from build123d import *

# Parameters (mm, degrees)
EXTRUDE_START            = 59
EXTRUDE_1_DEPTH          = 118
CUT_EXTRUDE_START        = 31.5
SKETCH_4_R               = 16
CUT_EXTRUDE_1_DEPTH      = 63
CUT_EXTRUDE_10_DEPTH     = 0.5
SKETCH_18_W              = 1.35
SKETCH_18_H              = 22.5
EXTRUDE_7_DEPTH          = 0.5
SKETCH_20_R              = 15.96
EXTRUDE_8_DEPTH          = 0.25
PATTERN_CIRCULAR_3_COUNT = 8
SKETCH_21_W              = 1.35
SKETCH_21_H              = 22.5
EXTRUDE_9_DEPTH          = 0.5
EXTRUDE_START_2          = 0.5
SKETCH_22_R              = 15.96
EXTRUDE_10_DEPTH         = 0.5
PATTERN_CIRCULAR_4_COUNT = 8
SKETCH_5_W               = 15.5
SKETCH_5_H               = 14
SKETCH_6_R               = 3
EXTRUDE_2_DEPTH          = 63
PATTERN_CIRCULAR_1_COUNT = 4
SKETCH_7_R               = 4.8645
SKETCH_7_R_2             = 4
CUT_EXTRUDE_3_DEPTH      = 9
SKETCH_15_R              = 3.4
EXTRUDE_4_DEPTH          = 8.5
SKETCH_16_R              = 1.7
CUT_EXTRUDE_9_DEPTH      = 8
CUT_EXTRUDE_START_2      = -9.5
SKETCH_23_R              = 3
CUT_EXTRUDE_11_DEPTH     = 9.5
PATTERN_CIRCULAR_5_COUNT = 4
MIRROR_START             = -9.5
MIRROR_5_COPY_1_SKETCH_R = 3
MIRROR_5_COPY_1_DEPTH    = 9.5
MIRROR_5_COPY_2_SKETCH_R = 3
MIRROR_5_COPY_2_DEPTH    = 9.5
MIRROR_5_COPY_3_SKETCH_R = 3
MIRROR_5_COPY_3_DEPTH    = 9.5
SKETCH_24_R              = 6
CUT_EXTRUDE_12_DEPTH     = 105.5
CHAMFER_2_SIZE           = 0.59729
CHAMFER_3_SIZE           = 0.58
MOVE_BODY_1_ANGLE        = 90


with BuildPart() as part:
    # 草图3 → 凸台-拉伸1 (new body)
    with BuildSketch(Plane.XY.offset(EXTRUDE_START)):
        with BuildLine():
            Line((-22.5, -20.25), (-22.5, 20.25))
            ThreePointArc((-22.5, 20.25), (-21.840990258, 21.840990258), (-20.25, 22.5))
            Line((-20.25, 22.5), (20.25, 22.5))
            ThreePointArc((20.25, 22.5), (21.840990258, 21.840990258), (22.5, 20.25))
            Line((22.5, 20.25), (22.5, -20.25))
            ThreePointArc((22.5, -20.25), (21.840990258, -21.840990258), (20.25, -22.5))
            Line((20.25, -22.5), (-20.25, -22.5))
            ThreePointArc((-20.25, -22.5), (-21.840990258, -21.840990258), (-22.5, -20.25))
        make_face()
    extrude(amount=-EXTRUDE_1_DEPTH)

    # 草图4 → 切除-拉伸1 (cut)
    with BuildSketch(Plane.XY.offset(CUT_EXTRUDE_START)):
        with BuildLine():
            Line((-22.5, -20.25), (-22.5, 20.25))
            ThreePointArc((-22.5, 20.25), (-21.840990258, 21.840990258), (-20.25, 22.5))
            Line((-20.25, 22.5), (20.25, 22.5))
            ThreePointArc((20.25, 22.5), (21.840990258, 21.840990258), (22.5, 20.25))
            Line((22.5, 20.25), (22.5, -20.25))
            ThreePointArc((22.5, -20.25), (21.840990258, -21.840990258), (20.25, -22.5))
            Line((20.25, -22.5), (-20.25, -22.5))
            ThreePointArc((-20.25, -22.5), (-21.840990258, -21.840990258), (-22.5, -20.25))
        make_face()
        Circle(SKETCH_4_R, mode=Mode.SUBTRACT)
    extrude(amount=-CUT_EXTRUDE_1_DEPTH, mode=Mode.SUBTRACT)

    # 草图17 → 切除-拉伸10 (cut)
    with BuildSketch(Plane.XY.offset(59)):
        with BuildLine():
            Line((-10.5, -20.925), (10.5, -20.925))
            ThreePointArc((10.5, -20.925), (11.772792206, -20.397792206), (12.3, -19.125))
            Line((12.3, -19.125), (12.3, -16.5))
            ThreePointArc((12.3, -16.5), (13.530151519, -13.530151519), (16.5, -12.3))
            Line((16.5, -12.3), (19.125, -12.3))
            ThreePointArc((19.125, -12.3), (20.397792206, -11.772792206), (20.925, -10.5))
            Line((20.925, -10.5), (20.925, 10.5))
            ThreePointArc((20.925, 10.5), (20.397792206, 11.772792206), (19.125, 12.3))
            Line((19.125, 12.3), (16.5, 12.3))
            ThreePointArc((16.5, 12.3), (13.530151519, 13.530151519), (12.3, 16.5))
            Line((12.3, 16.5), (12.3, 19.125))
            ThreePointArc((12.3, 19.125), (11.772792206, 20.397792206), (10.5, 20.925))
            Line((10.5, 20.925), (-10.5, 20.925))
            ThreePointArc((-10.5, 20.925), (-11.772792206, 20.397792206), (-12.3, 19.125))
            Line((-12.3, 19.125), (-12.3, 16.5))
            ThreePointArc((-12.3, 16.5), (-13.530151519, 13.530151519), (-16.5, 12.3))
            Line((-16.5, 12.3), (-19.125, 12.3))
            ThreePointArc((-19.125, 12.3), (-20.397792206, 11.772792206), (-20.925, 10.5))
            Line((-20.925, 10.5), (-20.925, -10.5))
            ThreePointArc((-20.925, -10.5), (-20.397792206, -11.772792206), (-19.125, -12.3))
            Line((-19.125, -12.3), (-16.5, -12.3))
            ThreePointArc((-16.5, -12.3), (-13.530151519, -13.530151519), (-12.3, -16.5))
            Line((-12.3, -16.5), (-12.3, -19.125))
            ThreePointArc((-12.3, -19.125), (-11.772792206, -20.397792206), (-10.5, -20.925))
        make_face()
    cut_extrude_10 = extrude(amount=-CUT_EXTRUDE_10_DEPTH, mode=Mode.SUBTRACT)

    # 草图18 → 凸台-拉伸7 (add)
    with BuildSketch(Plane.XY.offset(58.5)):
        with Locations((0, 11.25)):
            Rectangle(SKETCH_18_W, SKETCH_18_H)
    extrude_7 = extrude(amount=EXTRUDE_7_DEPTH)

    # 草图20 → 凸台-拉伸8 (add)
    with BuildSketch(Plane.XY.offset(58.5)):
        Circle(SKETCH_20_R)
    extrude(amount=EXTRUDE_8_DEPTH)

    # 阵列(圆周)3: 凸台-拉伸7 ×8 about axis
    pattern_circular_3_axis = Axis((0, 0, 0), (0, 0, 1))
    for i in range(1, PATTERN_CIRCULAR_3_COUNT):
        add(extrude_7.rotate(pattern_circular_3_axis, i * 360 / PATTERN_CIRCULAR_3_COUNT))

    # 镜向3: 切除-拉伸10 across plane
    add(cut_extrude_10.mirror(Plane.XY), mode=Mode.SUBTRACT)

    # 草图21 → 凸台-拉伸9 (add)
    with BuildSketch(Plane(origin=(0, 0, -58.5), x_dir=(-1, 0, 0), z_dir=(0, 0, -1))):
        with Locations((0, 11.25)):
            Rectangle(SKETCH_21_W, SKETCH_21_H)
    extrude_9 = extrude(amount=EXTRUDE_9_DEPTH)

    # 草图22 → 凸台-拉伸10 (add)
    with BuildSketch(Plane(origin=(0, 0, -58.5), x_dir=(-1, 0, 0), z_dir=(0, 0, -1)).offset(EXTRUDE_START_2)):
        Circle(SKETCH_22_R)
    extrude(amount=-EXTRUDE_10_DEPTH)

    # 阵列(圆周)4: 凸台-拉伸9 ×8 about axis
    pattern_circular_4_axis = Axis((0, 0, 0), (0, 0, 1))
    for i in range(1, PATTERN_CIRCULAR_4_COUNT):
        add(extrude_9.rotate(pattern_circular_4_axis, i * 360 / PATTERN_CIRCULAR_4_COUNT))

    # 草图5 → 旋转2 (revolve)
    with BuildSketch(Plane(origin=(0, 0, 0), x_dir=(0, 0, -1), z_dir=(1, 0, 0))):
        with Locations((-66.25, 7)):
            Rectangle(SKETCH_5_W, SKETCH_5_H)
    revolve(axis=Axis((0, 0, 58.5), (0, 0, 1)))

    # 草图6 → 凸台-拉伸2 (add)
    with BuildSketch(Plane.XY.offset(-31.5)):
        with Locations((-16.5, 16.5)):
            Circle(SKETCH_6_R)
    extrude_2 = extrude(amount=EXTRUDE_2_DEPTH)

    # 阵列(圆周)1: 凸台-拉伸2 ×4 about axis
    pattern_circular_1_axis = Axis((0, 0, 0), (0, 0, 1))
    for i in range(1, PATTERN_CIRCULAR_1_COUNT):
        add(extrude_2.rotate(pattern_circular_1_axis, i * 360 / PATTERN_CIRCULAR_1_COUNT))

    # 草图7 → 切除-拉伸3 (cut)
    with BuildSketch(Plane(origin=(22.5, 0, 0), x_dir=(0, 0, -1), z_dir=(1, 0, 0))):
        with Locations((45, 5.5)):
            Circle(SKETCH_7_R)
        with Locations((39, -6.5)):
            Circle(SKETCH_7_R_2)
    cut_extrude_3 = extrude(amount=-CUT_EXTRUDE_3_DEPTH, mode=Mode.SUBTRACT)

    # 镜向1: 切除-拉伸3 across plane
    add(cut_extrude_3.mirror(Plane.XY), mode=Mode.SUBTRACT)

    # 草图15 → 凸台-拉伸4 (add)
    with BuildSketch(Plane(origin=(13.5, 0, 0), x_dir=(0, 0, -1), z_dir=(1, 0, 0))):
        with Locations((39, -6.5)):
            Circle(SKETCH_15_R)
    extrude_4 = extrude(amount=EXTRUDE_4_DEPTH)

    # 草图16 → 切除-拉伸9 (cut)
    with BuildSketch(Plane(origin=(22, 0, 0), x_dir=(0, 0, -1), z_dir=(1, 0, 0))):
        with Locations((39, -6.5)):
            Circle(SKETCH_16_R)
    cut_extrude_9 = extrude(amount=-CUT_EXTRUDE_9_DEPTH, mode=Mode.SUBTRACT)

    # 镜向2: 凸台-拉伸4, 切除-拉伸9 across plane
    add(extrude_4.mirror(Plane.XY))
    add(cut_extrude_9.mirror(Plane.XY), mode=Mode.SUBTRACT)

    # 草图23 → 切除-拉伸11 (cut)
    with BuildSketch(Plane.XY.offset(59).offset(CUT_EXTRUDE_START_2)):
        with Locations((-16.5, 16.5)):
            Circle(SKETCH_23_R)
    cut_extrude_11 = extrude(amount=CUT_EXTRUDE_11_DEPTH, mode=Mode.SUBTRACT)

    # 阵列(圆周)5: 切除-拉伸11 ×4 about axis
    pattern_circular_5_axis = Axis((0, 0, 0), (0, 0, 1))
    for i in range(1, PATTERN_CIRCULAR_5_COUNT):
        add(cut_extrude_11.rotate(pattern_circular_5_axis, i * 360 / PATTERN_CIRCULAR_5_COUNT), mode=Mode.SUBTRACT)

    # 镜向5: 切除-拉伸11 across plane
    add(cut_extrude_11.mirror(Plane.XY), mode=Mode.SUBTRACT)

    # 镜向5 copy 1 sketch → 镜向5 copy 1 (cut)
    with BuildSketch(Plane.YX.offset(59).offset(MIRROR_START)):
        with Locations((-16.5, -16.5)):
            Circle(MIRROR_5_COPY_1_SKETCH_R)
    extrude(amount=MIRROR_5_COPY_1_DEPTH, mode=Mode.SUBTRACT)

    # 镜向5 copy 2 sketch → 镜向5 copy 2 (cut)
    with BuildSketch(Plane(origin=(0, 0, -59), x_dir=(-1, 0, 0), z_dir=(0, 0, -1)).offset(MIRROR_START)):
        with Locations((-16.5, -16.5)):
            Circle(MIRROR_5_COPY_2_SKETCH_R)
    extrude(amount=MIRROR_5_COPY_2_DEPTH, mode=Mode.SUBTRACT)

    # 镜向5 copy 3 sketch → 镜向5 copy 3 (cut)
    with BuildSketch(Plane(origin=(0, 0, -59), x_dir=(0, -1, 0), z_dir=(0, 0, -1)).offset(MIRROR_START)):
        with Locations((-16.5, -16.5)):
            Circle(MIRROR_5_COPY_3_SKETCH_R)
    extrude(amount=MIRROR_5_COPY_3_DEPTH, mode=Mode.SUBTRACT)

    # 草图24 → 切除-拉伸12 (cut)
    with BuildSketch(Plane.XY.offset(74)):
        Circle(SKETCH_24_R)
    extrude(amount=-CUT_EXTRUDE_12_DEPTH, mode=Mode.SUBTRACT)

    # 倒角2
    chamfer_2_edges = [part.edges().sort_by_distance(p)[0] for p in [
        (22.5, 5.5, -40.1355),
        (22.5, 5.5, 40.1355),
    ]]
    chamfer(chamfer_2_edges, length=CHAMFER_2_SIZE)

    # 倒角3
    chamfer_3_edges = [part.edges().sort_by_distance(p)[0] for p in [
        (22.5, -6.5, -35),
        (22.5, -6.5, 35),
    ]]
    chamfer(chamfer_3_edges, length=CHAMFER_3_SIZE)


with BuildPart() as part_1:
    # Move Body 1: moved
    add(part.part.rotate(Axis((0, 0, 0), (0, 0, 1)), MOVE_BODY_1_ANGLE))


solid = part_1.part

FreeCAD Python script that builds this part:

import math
import FreeCAD as App
import Part
import Sketcher
Q = App.Units.Quantity


def edges_at(feature, points):
    """Names of the edges that pass closest to the given points."""
    edges = feature.Shape.Edges
    near = lambda p: min(range(len(edges)), key=lambda i: edges[i].distToShape(Part.Vertex(*p))[0])
    return sorted({f"Edge{near(p) + 1}" for p in points})


def add_polygon(sketch, points):
    """Adds a closed chain of lines whose ends are joined by coincident constraints."""
    first, n = sketch.GeometryCount, len(points)
    for a, b in zip(points, points[1:] + points[:1]):
        sketch.addGeometry(Part.LineSegment(App.Vector(*a, 0), App.Vector(*b, 0)), False)
    for i in range(n):
        sketch.addConstraint(Sketcher.Constraint("Coincident", first + i, 2, first + (i + 1) % n, 1))

doc = App.newDocument("Part")
body = doc.addObject("PartDesign::Body", "Body")

# Sketch on XY plane
sketch1 = body.newObject("Sketcher::SketchObject", "Sketch")
sketch1.AttachmentSupport = (doc.getObject("XY_Plane"), [""])
sketch1.MapMode = "FlatFace"
sketch1.AttachmentOffset = App.Placement(App.Vector(0, 0, 59), App.Rotation())
sketch1.addGeometry([
    Part.LineSegment(App.Vector(-22.5, 20.2, 0), App.Vector(-22.5, -20.2, 0)),  # 0
    Part.ArcOfCircle(Part.Circle(App.Vector(-20.3, -20.3, 0), App.Vector(0, 0, 1), 2.2), math.radians(180), math.radians(270)),  # 1
    Part.LineSegment(App.Vector(-20.2, -22.5, 0), App.Vector(20.2, -22.5, 0)),  # 2
    Part.ArcOfCircle(Part.Circle(App.Vector(20.3, -20.3, 0), App.Vector(0, 0, 1), 2.2), math.radians(-90), math.radians(0)),  # 3
    Part.LineSegment(App.Vector(22.5, -20.2, 0), App.Vector(22.5, 20.2, 0)),  # 4
    Part.ArcOfCircle(Part.Circle(App.Vector(20.3, 20.3, 0), App.Vector(0, 0, 1), 2.2), math.radians(0), math.radians(90)),  # 5
    Part.LineSegment(App.Vector(20.2, 22.5, 0), App.Vector(-20.2, 22.5, 0)),  # 6
    Part.ArcOfCircle(Part.Circle(App.Vector(-20.3, 20.3, 0), App.Vector(0, 0, 1), 2.2), math.radians(90), math.radians(180)),  # 7
], False)
sketch1.addConstraint([
    Sketcher.Constraint("Tangent", 0, 2, 1, 1),
    Sketcher.Constraint("Tangent", 1, 2, 2, 1),
    Sketcher.Constraint("Tangent", 2, 2, 3, 1),
    Sketcher.Constraint("Tangent", 3, 2, 4, 1),
    Sketcher.Constraint("Tangent", 4, 2, 5, 1),
    Sketcher.Constraint("Tangent", 5, 2, 6, 1),
    Sketcher.Constraint("Tangent", 6, 2, 7, 1),
    Sketcher.Constraint("Tangent", 7, 2, 0, 1),
    Sketcher.Constraint("Vertical", 0),
    Sketcher.Constraint("Horizontal", 2),
    Sketcher.Constraint("Vertical", 4),
    Sketcher.Constraint("Horizontal", 6),
    Sketcher.Constraint("Equal", 1, 3),
    Sketcher.Constraint("Equal", 3, 5),
    Sketcher.Constraint("Equal", 5, 7),
    Sketcher.Constraint("Symmetric", 1, 3, 5, 3, -1, 1),
    Sketcher.Constraint("Equal", 6, 0),
    Sketcher.Constraint("Radius", 1, Q("2.25 mm")),
    Sketcher.Constraint("DistanceX", 2, 1, 2, 2, Q("40.5 mm")),
])
pad1 = body.newObject("PartDesign::Pad", "Pad")
pad1.Profile = sketch1
pad1.Length = 118
pad1.Reversed = True

# Sketch on XY plane
sketch2 = body.newObject("Sketcher::SketchObject", "Sketch001")
sketch2.AttachmentSupport = (doc.getObject("XY_Plane"), [""])
sketch2.MapMode = "FlatFace"
sketch2.AttachmentOffset = App.Placement(App.Vector(0, 0, 31.5), App.Rotation())
sketch2.addGeometry([
    Part.LineSegment(App.Vector(-22.5, 20.2, 0), App.Vector(-22.5, -20.2, 0)),  # 0
    Part.ArcOfCircle(Part.Circle(App.Vector(-20.3, -20.3, 0), App.Vector(0, 0, 1), 2.2), math.radians(180), math.radians(270)),  # 1
    Part.LineSegment(App.Vector(-20.2, -22.5, 0), App.Vector(20.2, -22.5, 0)),  # 2
    Part.ArcOfCircle(Part.Circle(App.Vector(20.3, -20.3, 0), App.Vector(0, 0, 1), 2.2), math.radians(-90), math.radians(0)),  # 3
    Part.LineSegment(App.Vector(22.5, -20.2, 0), App.Vector(22.5, 20.2, 0)),  # 4
    Part.ArcOfCircle(Part.Circle(App.Vector(20.3, 20.3, 0), App.Vector(0, 0, 1), 2.2), math.radians(0), math.radians(90)),  # 5
    Part.LineSegment(App.Vector(20.2, 22.5, 0), App.Vector(-20.2, 22.5, 0)),  # 6
    Part.ArcOfCircle(Part.Circle(App.Vector(-20.3, 20.3, 0), App.Vector(0, 0, 1), 2.2), math.radians(90), math.radians(180)),  # 7
    Part.Circle(App.Vector(0, 0, 0), App.Vector(0, 0, 1), 16),  # 8
], False)
sketch2.addConstraint([
    Sketcher.Constraint("Tangent", 0, 2, 1, 1),
    Sketcher.Constraint("Tangent", 1, 2, 2, 1),
    Sketcher.Constraint("Tangent", 2, 2, 3, 1),
    Sketcher.Constraint("Tangent", 3, 2, 4, 1),
    Sketcher.Constraint("Tangent", 4, 2, 5, 1),
    Sketcher.Constraint("Tangent", 5, 2, 6, 1),
    Sketcher.Constraint("Tangent", 6, 2, 7, 1),
    Sketcher.Constraint("Tangent", 7, 2, 0, 1),
    Sketcher.Constraint("Vertical", 0),
    Sketcher.Constraint("Horizontal", 2),
    Sketcher.Constraint("Vertical", 4),
    Sketcher.Constraint("Horizontal", 6),
    Sketcher.Constraint("Coincident", 8, 3, -1, 1),
    Sketcher.Constraint("Equal", 1, 3),
    Sketcher.Constraint("Equal", 3, 5),
    Sketcher.Constraint("Equal", 5, 7),
    Sketcher.Constraint("Symmetric", 1, 3, 5, 3, -1, 1),
    Sketcher.Constraint("Equal", 6, 0),
    Sketcher.Constraint("Diameter", 8, Q("32 mm")),
    Sketcher.Constraint("Radius", 1, Q("2.25 mm")),
    Sketcher.Constraint("DistanceX", 2, 1, 2, 2, Q("40.5 mm")),
])
pocket1 = body.newObject("PartDesign::Pocket", "Pocket")
pocket1.Profile = sketch2
pocket1.Length = 63

# Sketch on XY plane
sketch3 = body.newObject("Sketcher::SketchObject", "Sketch002")
sketch3.AttachmentSupport = (doc.getObject("XY_Plane"), [""])
sketch3.MapMode = "FlatFace"
sketch3.AttachmentOffset = App.Placement(App.Vector(0, 0, 59), App.Rotation())
sketch3.addGeometry([
    Part.LineSegment(App.Vector(-10.5, -20.9, 0), App.Vector(10.5, -20.9, 0)),  # 0
    Part.ArcOfCircle(Part.Circle(App.Vector(10.5, -19.1, 0), App.Vector(0, 0, 1), 1.8), math.radians(-90), math.radians(0)),  # 1
    Part.LineSegment(App.Vector(12.3, -19.1, 0), App.Vector(12.3, -16.5, 0)),  # 2
    Part.ArcOfCircle(Part.Circle(App.Vector(16.5, -16.5, 0), App.Vector(0, 0, 1), 4.2), math.radians(90), math.radians(180)),  # 3
    Part.LineSegment(App.Vector(16.5, -12.3, 0), App.Vector(19.1, -12.3, 0)),  # 4
    Part.ArcOfCircle(Part.Circle(App.Vector(19.1, -10.5, 0), App.Vector(0, 0, 1), 1.8), math.radians(-90), math.radians(0)),  # 5
    Part.LineSegment(App.Vector(20.9, -10.5, 0), App.Vector(20.9, 10.5, 0)),  # 6
    Part.ArcOfCircle(Part.Circle(App.Vector(19.1, 10.5, 0), App.Vector(0, 0, 1), 1.8), math.radians(0), math.radians(90)),  # 7
    Part.LineSegment(App.Vector(19.1, 12.3, 0), App.Vector(16.5, 12.3, 0)),  # 8
    Part.ArcOfCircle(Part.Circle(App.Vector(16.5, 16.5, 0), App.Vector(0, 0, 1), 4.2), math.radians(180), math.radians(270)),  # 9
    Part.LineSegment(App.Vector(12.3, 16.5, 0), App.Vector(12.3, 19.1, 0)),  # 10
    Part.ArcOfCircle(Part.Circle(App.Vector(10.5, 19.1, 0), App.Vector(0, 0, 1), 1.8), math.radians(0), math.radians(90)),  # 11
    Part.LineSegment(App.Vector(10.5, 20.9, 0), App.Vector(-10.5, 20.9, 0)),  # 12
    Part.ArcOfCircle(Part.Circle(App.Vector(-10.5, 19.1, 0), App.Vector(0, 0, 1), 1.8), math.radians(90), math.radians(180)),  # 13
    Part.LineSegment(App.Vector(-12.3, 19.1, 0), App.Vector(-12.3, 16.5, 0)),  # 14
    Part.ArcOfCircle(Part.Circle(App.Vector(-16.5, 16.5, 0), App.Vector(0, 0, 1), 4.2), math.radians(-90), math.radians(0)),  # 15
    Part.LineSegment(App.Vector(-16.5, 12.3, 0), App.Vector(-19.1, 12.3, 0)),  # 16
    Part.ArcOfCircle(Part.Circle(App.Vector(-19.1, 10.5, 0), App.Vector(0, 0, 1), 1.8), math.radians(90), math.radians(180)),  # 17
    Part.LineSegment(App.Vector(-20.9, 10.5, 0), App.Vector(-20.9, -10.5, 0)),  # 18
    Part.ArcOfCircle(Part.Circle(App.Vector(-19.1, -10.5, 0), App.Vector(0, 0, 1), 1.8), math.radians(180), math.radians(270)),  # 19
    Part.LineSegment(App.Vector(-19.1, -12.3, 0), App.Vector(-16.5, -12.3, 0)),  # 20
    Part.ArcOfCircle(Part.Circle(App.Vector(-16.5, -16.5, 0), App.Vector(0, 0, 1), 4.2), math.radians(0), math.radians(90)),  # 21
    Part.LineSegment(App.Vector(-12.3, -16.5, 0), App.Vector(-12.3, -19.1, 0)),  # 22
    Part.ArcOfCircle(Part.Circle(App.Vector(-10.5, -19.1, 0), App.Vector(0, 0, 1), 1.8), math.radians(180), math.radians(270)),  # 23
], False)
sketch3.addConstraint([
    Sketcher.Constraint("Tangent", 0, 2, 1, 1),
    Sketcher.Constraint("Tangent", 1, 2, 2, 1),
    Sketcher.Constraint("Tangent", 2, 2, 3, 2),
    Sketcher.Constraint("Tangent", 3, 1, 4, 1),
    Sketcher.Constraint("Tangent", 4, 2, 5, 1),
    Sketcher.Constraint("Tangent", 5, 2, 6, 1),
    Sketcher.Constraint("Tangent", 6, 2, 7, 1),
    Sketcher.Constraint("Tangent", 7, 2, 8, 1),
    Sketcher.Constraint("Tangent", 8, 2, 9, 2),
    Sketcher.Constraint("Tangent", 9, 1, 10, 1),
    Sketcher.Constraint("Tangent", 10, 2, 11, 1),
    Sketcher.Constraint("Tangent", 11, 2, 12, 1),
    Sketcher.Constraint("Tangent", 12, 2, 13, 1),
    Sketcher.Constraint("Tangent", 13, 2, 14, 1),
    Sketcher.Constraint("Tangent", 14, 2, 15, 2),
    Sketcher.Constraint("Tangent", 15, 1, 16, 1),
    Sketcher.Constraint("Tangent", 16, 2, 17, 1),
    Sketcher.Constraint("Tangent", 17, 2, 18, 1),
    Sketcher.Constraint("Tangent", 18, 2, 19, 1),
    Sketcher.Constraint("Tangent", 19, 2, 20, 1),
    Sketcher.Constraint("Tangent", 20, 2, 21, 2),
    Sketcher.Constraint("Tangent", 21, 1, 22, 1),
    Sketcher.Constraint("Tangent", 22, 2, 23, 1),
    Sketcher.Constraint("Tangent", 23, 2, 0, 1),
    Sketcher.Constraint("Horizontal", 0),
    Sketcher.Constraint("Vertical", 2),
    Sketcher.Constraint("Horizontal", 4),
    Sketcher.Constraint("Vertical", 6),
    Sketcher.Constraint("Horizontal", 8),
    Sketcher.Constraint("Vertical", 10),
    Sketcher.Constraint("Horizontal", 12),
    Sketcher.Constraint("Vertical", 14),
    Sketcher.Constraint("Horizontal", 16),
    Sketcher.Constraint("Vertical", 18),
    Sketcher.Constraint("Horizontal", 20),
    Sketcher.Constraint("Vertical", 22),
    Sketcher.Constraint("Equal", 1, 5),
    Sketcher.Constraint("Equal", 5, 7),
    Sketcher.Constraint("Equal", 3, 9),
    Sketcher.Constraint("Equal", 7, 11),
    Sketcher.Constraint("Equal", 11, 13),
    Sketcher.Constraint("Equal", 9, 15),
    Sketcher.Constraint("Equal", 13, 17),
    Sketcher.Constraint("Equal", 17, 19),
    Sketcher.Constraint("Equal", 15, 21),
    Sketcher.Constraint("Equal", 19, 23),
    Sketcher.Constraint("Symmetric", 1, 3, 13, 3, -1, 1),
    Sketcher.Constraint("Symmetric", 5, 3, 17, 3, -1, 1),
    Sketcher.Constraint("Symmetric", 9, 3, 21, 3, -1, 1),
    Sketcher.Constraint("Symmetric", 9, 3, 15, 3, -2),
    Sketcher.Constraint("Equal", 20, 2),
    Sketcher.Constraint("Equal", 12, 6),
    Sketcher.Constraint("Radius", 1, Q("1.8 mm")),
    Sketcher.Constraint("Radius", 3, Q("4.2 mm")),
    Sketcher.Constraint("DistanceX", 0, 1, 0, 2, Q("21 mm")),
    Sketcher.Constraint("DistanceX", 4, 1, 4, 2, Q("2.625 mm")),
])
pocket2 = body.newObject("PartDesign::Pocket", "Pocket001")
pocket2.Profile = sketch3
pocket2.Length = 0.5

# Sketch on XY plane
sketch4 = body.newObject("Sketcher::SketchObject", "Sketch003")
sketch4.AttachmentSupport = (doc.getObject("XY_Plane"), [""])
sketch4.MapMode = "FlatFace"
sketch4.AttachmentOffset = App.Placement(App.Vector(0, 0, 58.5), App.Rotation())
add_polygon(sketch4, [(-0.7, 22.5), (-0.7, 0), (0.7, 0), (0.7, 22.5)])  # lines 0-3
sketch4.addConstraint([
    Sketcher.Constraint("Vertical", 0),
    Sketcher.Constraint("Horizontal", 1),
    Sketcher.Constraint("Vertical", 2),
    Sketcher.Constraint("Horizontal", 3),
    Sketcher.Constraint("Symmetric", 0, 2, 1, 2, -1, 1),
    Sketcher.Constraint("DistanceY", 0, 2, 0, 1, Q("22.5 mm")),
    Sketcher.Constraint("DistanceX", 1, 1, 1, 2, Q("1.35 mm")),
])
pad2 = body.newObject("PartDesign::Pad", "Pad001")
pad2.Profile = sketch4
pad2.Length = 0.5

# Sketch on XY plane
sketch5 = body.newObject("Sketcher::SketchObject", "Sketch004")
sketch5.AttachmentSupport = (doc.getObject("XY_Plane"), [""])
sketch5.MapMode = "FlatFace"
sketch5.AttachmentOffset = App.Placement(App.Vector(0, 0, 58.5), App.Rotation())
sketch5.addGeometry(Part.Circle(App.Vector(0, 0, 0), App.Vector(0, 0, 1), 16), False)
sketch5.addConstraint([
    Sketcher.Constraint("Coincident", 0, 3, -1, 1),
    Sketcher.Constraint("Diameter", 0, Q("31.92 mm")),
])
pad3 = body.newObject("PartDesign::Pad", "Pad002")
pad3.Profile = sketch5
pad3.Length = 0.25
doc.recompute()

polarpattern = body.newObject("PartDesign::PolarPattern", "PolarPattern")
polarpattern.Originals = [pad2]
polarpattern.Axis = (doc.getObject("Z_Axis"), [""])
polarpattern.Angle = 360
polarpattern.Occurrences = 8
body.Tip = polarpattern
doc.recompute()

mirrored = body.newObject("PartDesign::Mirrored", "Mirrored")
mirrored.Originals = [pocket2]
mirrored.MirrorPlane = (doc.getObject("XY_Plane"), [""])
body.Tip = mirrored

# Sketch on XY plane
sketch6 = body.newObject("Sketcher::SketchObject", "Sketch005")
sketch6.AttachmentSupport = (doc.getObject("XY_Plane"), [""])
sketch6.MapMode = "FlatFace"
sketch6.AttachmentOffset = App.Placement(App.Vector(0, 0, -58.5), App.Rotation())
add_polygon(sketch6, [(0.7, 22.5), (0.7, 0), (-0.7, 0), (-0.7, 22.5)])  # lines 0-3
sketch6.addConstraint([
    Sketcher.Constraint("Vertical", 0),
    Sketcher.Constraint("Horizontal", 1),
    Sketcher.Constraint("Vertical", 2),
    Sketcher.Constraint("Horizontal", 3),
    Sketcher.Constraint("Symmetric", 0, 2, 1, 2, -1, 1),
    Sketcher.Constraint("DistanceY", 0, 2, 0, 1, Q("22.5 mm")),
    Sketcher.Constraint("DistanceX", 1, 2, 1, 1, Q("1.35 mm")),
])
pad4 = body.newObject("PartDesign::Pad", "Pad003")
pad4.Profile = sketch6
pad4.Length = 0.5
pad4.Reversed = True

# Sketch on XY plane
sketch7 = body.newObject("Sketcher::SketchObject", "Sketch006")
sketch7.AttachmentSupport = (doc.getObject("XY_Plane"), [""])
sketch7.MapMode = "FlatFace"
sketch7.AttachmentOffset = App.Placement(App.Vector(0, 0, -59), App.Rotation())
sketch7.addGeometry(Part.Circle(App.Vector(0, 0, 0), App.Vector(0, 0, 1), 16), False)
sketch7.addConstraint([
    Sketcher.Constraint("Coincident", 0, 3, -1, 1),
    Sketcher.Constraint("Diameter", 0, Q("31.92 mm")),
])
pad5 = body.newObject("PartDesign::Pad", "Pad004")
pad5.Profile = sketch7
pad5.Length = 0.5
doc.recompute()

polarpattern2 = body.newObject("PartDesign::PolarPattern", "PolarPattern001")
polarpattern2.Originals = [pad4]
polarpattern2.Axis = (doc.getObject("Z_Axis"), [""])
polarpattern2.Angle = 360
polarpattern2.Occurrences = 8
body.Tip = polarpattern2

# Sketch on YZ plane
sketch8 = body.newObject("Sketcher::SketchObject", "Sketch007")
sketch8.AttachmentSupport = (doc.getObject("YZ_Plane"), [""])
sketch8.MapMode = "FlatFace"
add_polygon(sketch8, [(14, 74), (0, 74), (0, 58), (14, 58)])  # lines 0-3
sketch8.addConstraint([
    Sketcher.Constraint("Horizontal", 0),
    Sketcher.Constraint("Vertical", 1),
    Sketcher.Constraint("Horizontal", 2),
    Sketcher.Constraint("Vertical", 3),
    Sketcher.Constraint("PointOnObject", 0, 2, -2),
    Sketcher.Constraint("DistanceX", 0, 2, 0, 1, Q("14 mm")),
    Sketcher.Constraint("DistanceY", 1, 2, 1, 1, Q("15.5 mm")),
    Sketcher.Constraint("DistanceY", -1, 1, 0, 2, Q("74 mm")),
])
revolution = body.newObject("PartDesign::Revolution", "Revolution")
revolution.Profile = sketch8
revolution.ReferenceAxis = (sketch8, ["V_Axis"])
revolution.Angle = 360

# Sketch on XY plane
sketch9 = body.newObject("Sketcher::SketchObject", "Sketch008")
sketch9.AttachmentSupport = (doc.getObject("XY_Plane"), [""])
sketch9.MapMode = "FlatFace"
sketch9.AttachmentOffset = App.Placement(App.Vector(0, 0, -31.5), App.Rotation())
sketch9.addGeometry(Part.Circle(App.Vector(-16.5, 16.5, 0), App.Vector(0, 0, 1), 3), False)
sketch9.addConstraint([
    Sketcher.Constraint("Diameter", 0, Q("6 mm")),
    Sketcher.Constraint("DistanceX", 0, 3, -1, 1, Q("16.5 mm")),
    Sketcher.Constraint("DistanceY", -1, 1, 0, 3, Q("16.5 mm")),
])
pad6 = body.newObject("PartDesign::Pad", "Pad005")
pad6.Profile = sketch9
pad6.Length = 63
doc.recompute()

polarpattern3 = body.newObject("PartDesign::PolarPattern", "PolarPattern002")
polarpattern3.Originals = [pad6]
polarpattern3.Axis = (doc.getObject("Z_Axis"), [""])
polarpattern3.Angle = 360
polarpattern3.Occurrences = 4
body.Tip = polarpattern3

# Sketch on YZ plane
sketch10 = body.newObject("Sketcher::SketchObject", "Sketch009")
sketch10.AttachmentSupport = (doc.getObject("YZ_Plane"), [""])
sketch10.MapMode = "FlatFace"
sketch10.AttachmentOffset = App.Placement(App.Vector(0, 0, 22.5), App.Rotation())
sketch10.addGeometry([
    Part.Circle(App.Vector(5.5, -45, 0), App.Vector(0, 0, 1), 4.9),
    Part.Circle(App.Vector(-6.5, -39, 0), App.Vector(0, 0, 1), 4),
], False)
sketch10.addConstraint([
    Sketcher.Constraint("Diameter", 1, Q("8 mm")),
    Sketcher.Constraint("Diameter", 0, Q("9.729 mm")),
    Sketcher.Constraint("DistanceY", 0, 3, -1, 1, Q("45 mm")),
    Sketcher.Constraint("DistanceY", 1, 3, -1, 1, Q("39 mm")),
    Sketcher.Constraint("DistanceX", 1, 3, 0, 3, Q("12 mm")),
    Sketcher.Constraint("DistanceX", -1, 1, 0, 3, Q("5.5 mm")),
])
pocket3 = body.newObject("PartDesign::Pocket", "Pocket002")
pocket3.Profile = sketch10
pocket3.Length = 9
doc.recompute()

mirrored2 = body.newObject("PartDesign::Mirrored", "Mirrored001")
mirrored2.Originals = [pocket3]
mirrored2.MirrorPlane = (doc.getObject("XY_Plane"), [""])
body.Tip = mirrored2

# Sketch on YZ plane
sketch11 = body.newObject("Sketcher::SketchObject", "Sketch010")
sketch11.AttachmentSupport = (doc.getObject("YZ_Plane"), [""])
sketch11.MapMode = "FlatFace"
sketch11.AttachmentOffset = App.Placement(App.Vector(0, 0, 13.5), App.Rotation())
sketch11.addGeometry(Part.Circle(App.Vector(-6.5, -39, 0), App.Vector(0, 0, 1), 3.4), False)
sketch11.addConstraint([
    Sketcher.Constraint("Diameter", 0, Q("6.8 mm")),
    Sketcher.Constraint("DistanceY", 0, 3, -1, 1, Q("39 mm")),
    Sketcher.Constraint("DistanceX", 0, 3, -1, 1, Q("6.5 mm")),
])
pad7 = body.newObject("PartDesign::Pad", "Pad006")
pad7.Profile = sketch11
pad7.Length = 8.5

# Sketch on YZ plane
sketch12 = body.newObject("Sketcher::SketchObject", "Sketch011")
sketch12.AttachmentSupport = (doc.getObject("YZ_Plane"), [""])
sketch12.MapMode = "FlatFace"
sketch12.AttachmentOffset = App.Placement(App.Vector(0, 0, 22), App.Rotation())
sketch12.addGeometry(Part.Circle(App.Vector(-6.5, -39, 0), App.Vector(0, 0, 1), 1.7), False)
sketch12.addConstraint([
    Sketcher.Constraint("Diameter", 0, Q("3.4 mm")),
    Sketcher.Constraint("DistanceY", 0, 3, -1, 1, Q("39 mm")),
    Sketcher.Constraint("DistanceX", 0, 3, -1, 1, Q("6.5 mm")),
])
pocket4 = body.newObject("PartDesign::Pocket", "Pocket003")
pocket4.Profile = sketch12
pocket4.Length = 8
doc.recompute()

mirrored3 = body.newObject("PartDesign::Mirrored", "Mirrored002")
mirrored3.Originals = [pad7, pocket4]
mirrored3.MirrorPlane = (doc.getObject("XY_Plane"), [""])
body.Tip = mirrored3

# Sketch on XY plane
sketch13 = body.newObject("Sketcher::SketchObject", "Sketch012")
sketch13.AttachmentSupport = (doc.getObject("XY_Plane"), [""])
sketch13.MapMode = "FlatFace"
sketch13.AttachmentOffset = App.Placement(App.Vector(0, 0, 49.5), App.Rotation())
sketch13.addGeometry(Part.Circle(App.Vector(-16.5, 16.5, 0), App.Vector(0, 0, 1), 3), False)
sketch13.addConstraint([
    Sketcher.Constraint("Diameter", 0, Q("6 mm")),
    Sketcher.Constraint("DistanceX", 0, 3, -1, 1, Q("16.5 mm")),
    Sketcher.Constraint("DistanceY", -1, 1, 0, 3, Q("16.5 mm")),
])
pocket5 = body.newObject("PartDesign::Pocket", "Pocket004")
pocket5.Profile = sketch13
pocket5.Length = 9.5
pocket5.Reversed = True
doc.recompute()

polarpattern4 = body.newObject("PartDesign::PolarPattern", "PolarPattern003")
polarpattern4.Originals = [pocket5]
polarpattern4.Axis = (doc.getObject("Z_Axis"), [""])
polarpattern4.Angle = 360
polarpattern4.Occurrences = 4
body.Tip = polarpattern4
doc.recompute()

mirrored4 = body.newObject("PartDesign::Mirrored", "Mirrored003")
mirrored4.Originals = [pocket5]
mirrored4.MirrorPlane = (doc.getObject("XY_Plane"), [""])
body.Tip = mirrored4

# Sketch on XY plane
sketch14 = body.newObject("Sketcher::SketchObject", "Sketch013")
sketch14.AttachmentSupport = (doc.getObject("XY_Plane"), [""])
sketch14.MapMode = "FlatFace"
sketch14.AttachmentOffset = App.Placement(App.Vector(0, 0, -49.5), App.Rotation())
sketch14.addGeometry(Part.Circle(App.Vector(-16.5, -16.5, 0), App.Vector(0, 0, 1), 3), False)
sketch14.addConstraint([
    Sketcher.Constraint("Diameter", 0, Q("6 mm")),
    Sketcher.Constraint("DistanceX", 0, 3, -1, 1, Q("16.5 mm")),
    Sketcher.Constraint("DistanceY", 0, 3, -1, 1, Q("16.5 mm")),
])
pocket6 = body.newObject("PartDesign::Pocket", "Pocket005")
pocket6.Profile = sketch14
pocket6.Length = 9.5

# Sketch on XY plane
sketch15 = body.newObject("Sketcher::SketchObject", "Sketch014")
sketch15.AttachmentSupport = (doc.getObject("XY_Plane"), [""])
sketch15.MapMode = "FlatFace"
sketch15.AttachmentOffset = App.Placement(App.Vector(0, 0, -49.5), App.Rotation())
sketch15.addGeometry(Part.Circle(App.Vector(16.5, -16.5, 0), App.Vector(0, 0, 1), 3), False)
sketch15.addConstraint([
    Sketcher.Constraint("Diameter", 0, Q("6 mm")),
    Sketcher.Constraint("DistanceX", -1, 1, 0, 3, Q("16.5 mm")),
    Sketcher.Constraint("DistanceY", 0, 3, -1, 1, Q("16.5 mm")),
])
pocket7 = body.newObject("PartDesign::Pocket", "Pocket006")
pocket7.Profile = sketch15
pocket7.Length = 9.5

# Sketch on XY plane
sketch16 = body.newObject("Sketcher::SketchObject", "Sketch015")
sketch16.AttachmentSupport = (doc.getObject("XY_Plane"), [""])
sketch16.MapMode = "FlatFace"
sketch16.AttachmentOffset = App.Placement(App.Vector(0, 0, -49.5), App.Rotation())
sketch16.addGeometry(Part.Circle(App.Vector(16.5, 16.5, 0), App.Vector(0, 0, 1), 3), False)
sketch16.addConstraint([
    Sketcher.Constraint("Diameter", 0, Q("6 mm")),
    Sketcher.Constraint("DistanceX", -1, 1, 0, 3, Q("16.5 mm")),
    Sketcher.Constraint("DistanceY", -1, 1, 0, 3, Q("16.5 mm")),
])
pocket8 = body.newObject("PartDesign::Pocket", "Pocket007")
pocket8.Profile = sketch16
pocket8.Length = 9.5

# Sketch on XY plane
sketch17 = body.newObject("Sketcher::SketchObject", "Sketch016")
sketch17.AttachmentSupport = (doc.getObject("XY_Plane"), [""])
sketch17.MapMode = "FlatFace"
sketch17.AttachmentOffset = App.Placement(App.Vector(0, 0, 74), App.Rotation())
sketch17.addGeometry(Part.Circle(App.Vector(0, 0, 0), App.Vector(0, 0, 1), 6), False)
sketch17.addConstraint([
    Sketcher.Constraint("Coincident", 0, 3, -1, 1),
    Sketcher.Constraint("Diameter", 0, Q("12 mm")),
])
pocket9 = body.newObject("PartDesign::Pocket", "Pocket008")
pocket9.Profile = sketch17
pocket9.Length = 105.5
doc.recompute()

chamfer = body.newObject("PartDesign::Chamfer", "Chamfer")
chamfer.Base = (pocket9, edges_at(pocket9, [(22.5, 5.5, -40.136), (22.5, 5.5, 40.136)]))
chamfer.Size = 0.59729
doc.recompute()

chamfer2 = body.newObject("PartDesign::Chamfer", "Chamfer001")
chamfer2.Base = (chamfer, edges_at(chamfer, [(22.5, -6.5, -35), (22.5, -6.5, 35)]))
chamfer2.Size = 0.58
body2 = doc.addObject("PartDesign::Body", "Body001")
doc.recompute()

body.Placement = App.Placement(App.Vector(0, 0, 0), App.Rotation(App.Vector(0, 0, 1), 90))
boolean = body2.newObject("PartDesign::Boolean", "Boolean")
boolean.Type = "Fuse"
boolean.addObjects([body])

doc.recompute()
